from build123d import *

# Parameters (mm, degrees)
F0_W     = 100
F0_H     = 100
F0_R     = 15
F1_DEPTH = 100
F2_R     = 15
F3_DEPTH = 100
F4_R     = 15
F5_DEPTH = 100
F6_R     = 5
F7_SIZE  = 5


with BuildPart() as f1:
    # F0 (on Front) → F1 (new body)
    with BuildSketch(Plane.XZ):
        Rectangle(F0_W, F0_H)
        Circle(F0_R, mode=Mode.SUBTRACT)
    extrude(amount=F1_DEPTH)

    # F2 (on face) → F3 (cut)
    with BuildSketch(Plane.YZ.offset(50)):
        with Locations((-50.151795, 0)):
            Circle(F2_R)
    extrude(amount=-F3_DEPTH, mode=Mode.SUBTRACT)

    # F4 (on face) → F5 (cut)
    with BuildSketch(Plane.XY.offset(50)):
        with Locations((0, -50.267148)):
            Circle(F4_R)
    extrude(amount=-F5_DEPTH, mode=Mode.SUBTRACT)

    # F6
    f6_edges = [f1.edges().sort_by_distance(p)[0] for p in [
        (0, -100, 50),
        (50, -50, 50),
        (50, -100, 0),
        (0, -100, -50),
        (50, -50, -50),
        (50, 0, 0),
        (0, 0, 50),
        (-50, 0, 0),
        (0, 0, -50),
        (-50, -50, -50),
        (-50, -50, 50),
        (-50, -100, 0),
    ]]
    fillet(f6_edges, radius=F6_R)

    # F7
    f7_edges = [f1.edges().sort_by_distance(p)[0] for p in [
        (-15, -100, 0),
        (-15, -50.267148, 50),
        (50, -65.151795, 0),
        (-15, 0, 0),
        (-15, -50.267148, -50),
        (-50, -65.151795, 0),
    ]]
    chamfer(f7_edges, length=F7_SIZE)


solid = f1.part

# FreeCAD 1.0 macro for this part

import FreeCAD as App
import Part
import Sketcher

V = App.Vector


def edges_at(feature, points):
    """Names of the edges that pass closest to the given points."""
    edges = feature.Shape.Edges
    near = lambda p: min(range(len(edges)), key=lambda i: edges[i].distToShape(Part.Vertex(*p))[0])
    return sorted({f"Edge{near(p) + 1}" for p in points})

doc = App.newDocument("Part")
params = doc.addObject("Spreadsheet::Sheet", "Params")
for row, (alias, value) in enumerate([
    ("sketch1_diameter", "30 mm"),
    ("sketch1_width", "100 mm"),
    ("pad1_length", "100 mm"),
    ("sketch2_diameter", "30 mm"),
    ("pocket1_length", "100 mm"),
    ("sketch3_diameter", "30 mm"),
    ("pocket2_length", "100 mm"),
    ("fillet_radius", "5 mm"),
    ("chamfer_size", "5 mm"),
], start=1):
    params.set(f"A{row}", alias)
    params.set(f"B{row}", "=" + value)
    params.setAlias(f"B{row}", alias)

body = doc.addObject("PartDesign::Body", "Body")

# Sketch on XZ plane
sketch1 = body.newObject("Sketcher::SketchObject", "Sketch")
sketch1.AttachmentSupport = (doc.getObject("XZ_Plane"), [""])
sketch1.MapMode = "FlatFace"
sketch1.addGeometry([
    Part.LineSegment(V(-50, 50, 0), V(-50, -50, 0)),  # 0
    Part.LineSegment(V(-50, -50, 0), V(50, -50, 0)),  # 1
    Part.LineSegment(V(50, -50, 0), V(50, 50, 0)),  # 2
    Part.LineSegment(V(50, 50, 0), V(-50, 50, 0)),  # 3
    Part.Circle(V(0, 0, 0), V(0, 0, 1), 15),  # 4
], False)
sketch1.addConstraint([
    Sketcher.Constraint("Coincident", 0, 2, 1, 1),
    Sketcher.Constraint("Coincident", 1, 2, 2, 1),
    Sketcher.Constraint("Coincident", 2, 2, 3, 1),
    Sketcher.Constraint("Coincident", 3, 2, 0, 1),
    Sketcher.Constraint("Vertical", 0),
    Sketcher.Constraint("Horizontal", 1),
    Sketcher.Constraint("Vertical", 2),
    Sketcher.Constraint("Horizontal", 3),
    Sketcher.Constraint("Coincident", 4, 3, -1, 1),
    Sketcher.Constraint("Symmetric", 0, 2, 2, 2, -1, 1),
    Sketcher.Constraint("Equal", 3, 0),
    Sketcher.Constraint("Diameter", 4, 30.0),
    Sketcher.Constraint("DistanceX", 1, 1, 1, 2, 100.0),
])
sketch1.setExpression("Constraints[11]", "Params.sketch1_diameter")
sketch1.setExpression("Constraints[12]", "Params.sketch1_width")
pad1 = body.newObject("PartDesign::Pad", "Pad")
pad1.Profile = sketch1
pad1.setExpression("Length", "Params.pad1_length")

# Sketch on YZ plane
sketch2 = body.newObject("Sketcher::SketchObject", "Sketch001")
sketch2.AttachmentSupport = (doc.getObject("YZ_Plane"), [""])
sketch2.MapMode = "FlatFace"
sketch2.AttachmentOffset = App.Placement(V(0, 0, 50), App.Rotation())
sketch2.addGeometry(Part.Circle(V(-50.151795, 0, 0), V(0, 0, 1), 15), False)
sketch2.addConstraint([
    Sketcher.Constraint("PointOnObject", 0, 3, -1),
    Sketcher.Constraint("Diameter", 0, 30.0),
    Sketcher.Constraint("DistanceX", 0, 3, -1, 1, 50.151795),
])
sketch2.setExpression("Constraints[1]", "Params.sketch2_diameter")
pocket1 = body.newObject("PartDesign::Pocket", "Pocket")
pocket1.Profile = sketch2
pocket1.setExpression("Length", "Params.pocket1_length")

# Sketch on XY plane
sketch3 = body.newObject("Sketcher::SketchObject", "Sketch002")
sketch3.AttachmentSupport = (doc.getObject("XY_Plane"), [""])
sketch3.MapMode = "FlatFace"
sketch3.AttachmentOffset = App.Placement(V(0, 0, 50), App.Rotation())
sketch3.addGeometry(Part.Circle(V(0, -50.267148, 0), V(0, 0, 1), 15), False)
sketch3.addConstraint([
    Sketcher.Constraint("PointOnObject", 0, 3, -2),
    Sketcher.Constraint("Diameter", 0, 30.0),
    Sketcher.Constraint("DistanceY", 0, 3, -1, 1, 50.267148),
])
sketch3.setExpression("Constraints[1]", "Params.sketch3_diameter")
pocket2 = body.newObject("PartDesign::Pocket", "Pocket001")
pocket2.Profile = sketch3
pocket2.setExpression("Length", "Params.pocket2_length")
doc.recompute()

fillet = body.newObject("PartDesign::Fillet", "Fillet")
fillet.Base = (pocket2, edges_at(pocket2, [
    (0, -100, 50),
    (50, -50, 50),
    (50, -100, 0),
    (0, -100, -50),
    (50, -50, -50),
    (50, 0, 0),
    (0, 0, 50),
    (-50, 0, 0),
    (0, 0, -50),
    (-50, -50, -50),
    (-50, -50, 50),
    (-50, -100, 0),
]))
fillet.setExpression("Radius", "Params.fillet_radius")
doc.recompute()

chamfer = body.newObject("PartDesign::Chamfer", "Chamfer")
chamfer.Base = (fillet, edges_at(fillet, [
    (-15, -100, 0),
    (-15, -50.267, 50),
    (50, -65.152, 0),
    (-15, 0, 0),
    (-15, -50.267, -50),
    (-50, -65.152, 0),
]))
chamfer.setExpression("Size", "Params.chamfer_size")

doc.recompute()
